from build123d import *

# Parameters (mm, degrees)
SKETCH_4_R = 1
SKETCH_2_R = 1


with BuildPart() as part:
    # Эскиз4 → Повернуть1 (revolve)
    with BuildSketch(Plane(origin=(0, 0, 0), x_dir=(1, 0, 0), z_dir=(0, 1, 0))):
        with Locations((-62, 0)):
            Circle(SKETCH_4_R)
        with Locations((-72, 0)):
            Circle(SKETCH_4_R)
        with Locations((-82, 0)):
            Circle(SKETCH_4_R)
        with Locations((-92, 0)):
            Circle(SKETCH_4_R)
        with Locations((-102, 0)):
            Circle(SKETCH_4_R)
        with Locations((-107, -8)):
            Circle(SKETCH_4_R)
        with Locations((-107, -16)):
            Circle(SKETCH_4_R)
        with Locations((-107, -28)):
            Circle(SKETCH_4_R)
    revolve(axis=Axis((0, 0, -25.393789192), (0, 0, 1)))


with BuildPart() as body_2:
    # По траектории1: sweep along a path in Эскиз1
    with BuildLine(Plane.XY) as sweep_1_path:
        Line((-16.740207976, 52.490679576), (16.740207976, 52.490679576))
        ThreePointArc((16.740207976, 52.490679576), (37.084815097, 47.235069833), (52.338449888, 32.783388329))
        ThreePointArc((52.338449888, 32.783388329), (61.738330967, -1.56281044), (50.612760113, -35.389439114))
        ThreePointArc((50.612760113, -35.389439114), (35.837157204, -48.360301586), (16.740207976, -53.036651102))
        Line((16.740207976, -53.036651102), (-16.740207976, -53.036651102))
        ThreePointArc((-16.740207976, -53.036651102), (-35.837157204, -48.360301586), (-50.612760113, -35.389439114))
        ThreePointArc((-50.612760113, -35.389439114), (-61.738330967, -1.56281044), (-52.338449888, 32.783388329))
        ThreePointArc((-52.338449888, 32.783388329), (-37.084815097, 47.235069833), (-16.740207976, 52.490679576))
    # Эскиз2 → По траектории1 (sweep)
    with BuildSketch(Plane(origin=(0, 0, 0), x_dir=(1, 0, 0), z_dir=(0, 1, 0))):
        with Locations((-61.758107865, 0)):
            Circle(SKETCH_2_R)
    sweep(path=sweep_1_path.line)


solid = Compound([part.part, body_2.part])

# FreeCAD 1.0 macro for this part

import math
import FreeCAD as App
import Part
import Sketcher
from FreeCAD import Vector

doc = App.newDocument("Part")
params = doc.addObject("Spreadsheet::Sheet", "Params")
for row, (alias, value) in enumerate([
    ("sketch1_diameter", "2 mm"),
    ("revolution_angle", "360 deg"),
    ("sketch2_diameter", "2 mm"),
], start=1):
    params.set(f"A{row}", alias)
    params.set(f"B{row}", "=" + value)
    params.setAlias(f"B{row}", alias)

body = doc.addObject("PartDesign::Body", "Body")
body.AllowCompound = True

sketch1 = doc.addObject("Sketcher::SketchObject", "Sketch")
body.addObject(sketch1)
sketch1.AttachmentSupport = (doc.XZ_Plane, [""])
sketch1.MapMode = "FlatFace"
sketch1.addGeometry(Part.Circle(Vector(-62, 0, 0), Vector(0, 0, 1), 1), False)
sketch1.addGeometry(Part.Circle(Vector(-72, 0, 0), Vector(0, 0, 1), 1), False)
sketch1.addGeometry(Part.Circle(Vector(-82, 0, 0), Vector(0, 0, 1), 1), False)
sketch1.addGeometry(Part.Circle(Vector(-92, 0, 0), Vector(0, 0, 1), 1), False)
sketch1.addGeometry(Part.Circle(Vector(-102, 0, 0), Vector(0, 0, 1), 1), False)
sketch1.addGeometry(Part.Circle(Vector(-107, 8, 0), Vector(0, 0, 1), 1), False)
sketch1.addGeometry(Part.Circle(Vector(-107, 16, 0), Vector(0, 0, 1), 1), False)
sketch1.addGeometry(Part.Circle(Vector(-107, 28, 0), Vector(0, 0, 1), 1), False)
sketch1.addConstraint(Sketcher.Constraint("Equal", 0, 1))
sketch1.addConstraint(Sketcher.Constraint("Equal", 1, 2))
sketch1.addConstraint(Sketcher.Constraint("Equal", 2, 3))
sketch1.addConstraint(Sketcher.Constraint("Equal", 3, 4))
sketch1.addConstraint(Sketcher.Constraint("Equal", 4, 5))
sketch1.addConstraint(Sketcher.Constraint("Equal", 5, 6))
sketch1.addConstraint(Sketcher.Constraint("Equal", 6, 7))
sketch1.addConstraint(Sketcher.Constraint("PointOnObject", 0, 3, -1))
sketch1.addConstraint(Sketcher.Constraint("PointOnObject", 1, 3, -1))
sketch1.addConstraint(Sketcher.Constraint("PointOnObject", 2, 3, -1))
sketch1.addConstraint(Sketcher.Constraint("PointOnObject", 3, 3, -1))
sketch1.addConstraint(Sketcher.Constraint("PointOnObject", 4, 3, -1))
sketch1.addConstraint(Sketcher.Constraint("Vertical", 5, 3, 6, 3))
sketch1.addConstraint(Sketcher.Constraint("Vertical", 6, 3, 7, 3))
sketch1.addConstraint(Sketcher.Constraint("Diameter", 0, 2.0))
sketch1.addConstraint(Sketcher.Constraint("DistanceX", 0, 3, -1, 1, 62.0))
sketch1.addConstraint(Sketcher.Constraint("DistanceX", 1, 3, -1, 1, 72.0))
sketch1.addConstraint(Sketcher.Constraint("DistanceX", 2, 3, -1, 1, 82.0))
sketch1.addConstraint(Sketcher.Constraint("DistanceX", 3, 3, -1, 1, 92.0))
sketch1.addConstraint(Sketcher.Constraint("DistanceX", 4, 3, -1, 1, 102.0))
sketch1.addConstraint(Sketcher.Constraint("DistanceX", 5, 3, -1, 1, 107.0))
sketch1.addConstraint(Sketcher.Constraint("DistanceY", -1, 1, 5, 3, 8.0))
sketch1.addConstraint(Sketcher.Constraint("DistanceY", -1, 1, 6, 3, 16.0))
sketch1.addConstraint(Sketcher.Constraint("DistanceY", -1, 1, 7, 3, 28.0))
sketch1.setExpression("Constraints[14]", "Params.sketch1_diameter")
revolution = doc.addObject("PartDesign::Revolution", "Revolution")
body.addObject(revolution)
revolution.Profile = sketch1
revolution.ReferenceAxis = (sketch1, ["V_Axis"])
revolution.setExpression("Angle", "Params.revolution_angle")
body2 = doc.addObject("PartDesign::Body", "Body001")

sketch2 = doc.addObject("Sketcher::SketchObject", "Sketch001")
body2.addObject(sketch2)
sketch2.AttachmentSupport = (doc.getObject("XZ_Plane001"), [""])
sketch2.MapMode = "FlatFace"
sketch2.addGeometry(Part.Circle(Vector(-61.758108, 0, 0), Vector(0, 0, 1), 1), False)
sketch2.addConstraint(Sketcher.Constraint("PointOnObject", 0, 3, -1))
sketch2.addConstraint(Sketcher.Constraint("Diameter", 0, 2.0))
sketch2.addConstraint(Sketcher.Constraint("DistanceX", 0, 3, -1, 1, 61.758108))
sketch2.setExpression("Constraints[1]", "Params.sketch2_diameter")

sketch3 = doc.addObject("Sketcher::SketchObject", "Sketch002")
body2.addObject(sketch3)
sketch3.AttachmentSupport = (doc.getObject("XY_Plane001"), [""])
sketch3.MapMode = "FlatFace"
sketch3.addGeometry(Part.LineSegment(Vector(-16.740208, 52.49068, 0), Vector(16.740208, 52.49068, 0)), False)
sketch3.addGeometry(Part.ArcOfCircle(Part.Circle(Vector(16.740208, 10.485613, 0), Vector(0, 0, 1), 42.005066), math.radians(32.061915), math.radians(90)), False)
sketch3.addGeometry(Part.ArcOfCircle(Part.Circle(Vector(0, 0, 0), Vector(0, 0, 1), 61.758108), math.radians(-34.962004), math.radians(32.061915)), False)
sketch3.addGeometry(Part.ArcOfCircle(Part.Circle(Vector(16.740208, -11.705083, 0), Vector(0, 0, 1), 41.331568), math.radians(-90), math.radians(-34.962004)), False)
sketch3.addGeometry(Part.LineSegment(Vector(16.740208, -53.036651, 0), Vector(-16.740208, -53.036651, 0)), False)
sketch3.addGeometry(Part.ArcOfCircle(Part.Circle(Vector(-16.740208, -11.705083, 0), Vector(0, 0, 1), 41.331568), math.radians(-145.037996), math.radians(-90)), False)
sketch3.addGeometry(Part.ArcOfCircle(Part.Circle(Vector(0, 0, 0), Vector(0, 0, 1), 61.758108), math.radians(147.938085), math.radians(214.962004)), False)
sketch3.addGeometry(Part.ArcOfCircle(Part.Circle(Vector(-16.740208, 10.485613, 0), Vector(0, 0, 1), 42.005066), math.radians(90), math.radians(147.938085)), False)
sketch3.addConstraint(Sketcher.Constraint("Tangent", 0, 2, 1, 2))
sketch3.addConstraint(Sketcher.Constraint("Tangent", 1, 1, 2, 2))
sketch3.addConstraint(Sketcher.Constraint("Tangent", 2, 1, 3, 2))
sketch3.addConstraint(Sketcher.Constraint("Tangent", 3, 1, 4, 1))
sketch3.addConstraint(Sketcher.Constraint("Tangent", 4, 2, 5, 2))
sketch3.addConstraint(Sketcher.Constraint("Tangent", 5, 1, 6, 2))
sketch3.addConstraint(Sketcher.Constraint("Tangent", 6, 1, 7, 2))
sketch3.addConstraint(Sketcher.Constraint("Tangent", 7, 1, 0, 1))
sketch3.addConstraint(Sketcher.Constraint("Horizontal", 0))
sketch3.addConstraint(Sketcher.Constraint("Horizontal", 4))
sketch3.addConstraint(Sketcher.Constraint("Coincident", 2, 3, -1, 1))
sketch3.addConstraint(Sketcher.Constraint("Coincident", 6, 3, -1, 1))
sketch3.addConstraint(Sketcher.Constraint("Equal", 3, 5))
sketch3.addConstraint(Sketcher.Constraint("Equal", 2, 6))
sketch3.addConstraint(Sketcher.Constraint("Equal", 1, 7))
sketch3.addConstraint(Sketcher.Constraint("Vertical", 1, 3, 3, 3))
sketch3.addConstraint(Sketcher.Constraint("Radius", 1, 42.005066))
sketch3.addConstraint(Sketcher.Constraint("Radius", 2, 61.758108))
sketch3.addConstraint(Sketcher.Constraint("Radius", 3, 41.331568))
sketch3.addConstraint(Sketcher.Constraint("DistanceX", 0, 1, 0, 2, 33.480416))
doc.recompute()

additivepipe = doc.addObject("PartDesign::AdditivePipe", "AdditivePipe")
body2.addObject(additivepipe)
additivepipe.Profile = sketch2
additivepipe.Spine = (sketch3, ["Edge1", "Edge2", "Edge3", "Edge4", "Edge5", "Edge6", "Edge7", "Edge8"])

doc.recompute()
